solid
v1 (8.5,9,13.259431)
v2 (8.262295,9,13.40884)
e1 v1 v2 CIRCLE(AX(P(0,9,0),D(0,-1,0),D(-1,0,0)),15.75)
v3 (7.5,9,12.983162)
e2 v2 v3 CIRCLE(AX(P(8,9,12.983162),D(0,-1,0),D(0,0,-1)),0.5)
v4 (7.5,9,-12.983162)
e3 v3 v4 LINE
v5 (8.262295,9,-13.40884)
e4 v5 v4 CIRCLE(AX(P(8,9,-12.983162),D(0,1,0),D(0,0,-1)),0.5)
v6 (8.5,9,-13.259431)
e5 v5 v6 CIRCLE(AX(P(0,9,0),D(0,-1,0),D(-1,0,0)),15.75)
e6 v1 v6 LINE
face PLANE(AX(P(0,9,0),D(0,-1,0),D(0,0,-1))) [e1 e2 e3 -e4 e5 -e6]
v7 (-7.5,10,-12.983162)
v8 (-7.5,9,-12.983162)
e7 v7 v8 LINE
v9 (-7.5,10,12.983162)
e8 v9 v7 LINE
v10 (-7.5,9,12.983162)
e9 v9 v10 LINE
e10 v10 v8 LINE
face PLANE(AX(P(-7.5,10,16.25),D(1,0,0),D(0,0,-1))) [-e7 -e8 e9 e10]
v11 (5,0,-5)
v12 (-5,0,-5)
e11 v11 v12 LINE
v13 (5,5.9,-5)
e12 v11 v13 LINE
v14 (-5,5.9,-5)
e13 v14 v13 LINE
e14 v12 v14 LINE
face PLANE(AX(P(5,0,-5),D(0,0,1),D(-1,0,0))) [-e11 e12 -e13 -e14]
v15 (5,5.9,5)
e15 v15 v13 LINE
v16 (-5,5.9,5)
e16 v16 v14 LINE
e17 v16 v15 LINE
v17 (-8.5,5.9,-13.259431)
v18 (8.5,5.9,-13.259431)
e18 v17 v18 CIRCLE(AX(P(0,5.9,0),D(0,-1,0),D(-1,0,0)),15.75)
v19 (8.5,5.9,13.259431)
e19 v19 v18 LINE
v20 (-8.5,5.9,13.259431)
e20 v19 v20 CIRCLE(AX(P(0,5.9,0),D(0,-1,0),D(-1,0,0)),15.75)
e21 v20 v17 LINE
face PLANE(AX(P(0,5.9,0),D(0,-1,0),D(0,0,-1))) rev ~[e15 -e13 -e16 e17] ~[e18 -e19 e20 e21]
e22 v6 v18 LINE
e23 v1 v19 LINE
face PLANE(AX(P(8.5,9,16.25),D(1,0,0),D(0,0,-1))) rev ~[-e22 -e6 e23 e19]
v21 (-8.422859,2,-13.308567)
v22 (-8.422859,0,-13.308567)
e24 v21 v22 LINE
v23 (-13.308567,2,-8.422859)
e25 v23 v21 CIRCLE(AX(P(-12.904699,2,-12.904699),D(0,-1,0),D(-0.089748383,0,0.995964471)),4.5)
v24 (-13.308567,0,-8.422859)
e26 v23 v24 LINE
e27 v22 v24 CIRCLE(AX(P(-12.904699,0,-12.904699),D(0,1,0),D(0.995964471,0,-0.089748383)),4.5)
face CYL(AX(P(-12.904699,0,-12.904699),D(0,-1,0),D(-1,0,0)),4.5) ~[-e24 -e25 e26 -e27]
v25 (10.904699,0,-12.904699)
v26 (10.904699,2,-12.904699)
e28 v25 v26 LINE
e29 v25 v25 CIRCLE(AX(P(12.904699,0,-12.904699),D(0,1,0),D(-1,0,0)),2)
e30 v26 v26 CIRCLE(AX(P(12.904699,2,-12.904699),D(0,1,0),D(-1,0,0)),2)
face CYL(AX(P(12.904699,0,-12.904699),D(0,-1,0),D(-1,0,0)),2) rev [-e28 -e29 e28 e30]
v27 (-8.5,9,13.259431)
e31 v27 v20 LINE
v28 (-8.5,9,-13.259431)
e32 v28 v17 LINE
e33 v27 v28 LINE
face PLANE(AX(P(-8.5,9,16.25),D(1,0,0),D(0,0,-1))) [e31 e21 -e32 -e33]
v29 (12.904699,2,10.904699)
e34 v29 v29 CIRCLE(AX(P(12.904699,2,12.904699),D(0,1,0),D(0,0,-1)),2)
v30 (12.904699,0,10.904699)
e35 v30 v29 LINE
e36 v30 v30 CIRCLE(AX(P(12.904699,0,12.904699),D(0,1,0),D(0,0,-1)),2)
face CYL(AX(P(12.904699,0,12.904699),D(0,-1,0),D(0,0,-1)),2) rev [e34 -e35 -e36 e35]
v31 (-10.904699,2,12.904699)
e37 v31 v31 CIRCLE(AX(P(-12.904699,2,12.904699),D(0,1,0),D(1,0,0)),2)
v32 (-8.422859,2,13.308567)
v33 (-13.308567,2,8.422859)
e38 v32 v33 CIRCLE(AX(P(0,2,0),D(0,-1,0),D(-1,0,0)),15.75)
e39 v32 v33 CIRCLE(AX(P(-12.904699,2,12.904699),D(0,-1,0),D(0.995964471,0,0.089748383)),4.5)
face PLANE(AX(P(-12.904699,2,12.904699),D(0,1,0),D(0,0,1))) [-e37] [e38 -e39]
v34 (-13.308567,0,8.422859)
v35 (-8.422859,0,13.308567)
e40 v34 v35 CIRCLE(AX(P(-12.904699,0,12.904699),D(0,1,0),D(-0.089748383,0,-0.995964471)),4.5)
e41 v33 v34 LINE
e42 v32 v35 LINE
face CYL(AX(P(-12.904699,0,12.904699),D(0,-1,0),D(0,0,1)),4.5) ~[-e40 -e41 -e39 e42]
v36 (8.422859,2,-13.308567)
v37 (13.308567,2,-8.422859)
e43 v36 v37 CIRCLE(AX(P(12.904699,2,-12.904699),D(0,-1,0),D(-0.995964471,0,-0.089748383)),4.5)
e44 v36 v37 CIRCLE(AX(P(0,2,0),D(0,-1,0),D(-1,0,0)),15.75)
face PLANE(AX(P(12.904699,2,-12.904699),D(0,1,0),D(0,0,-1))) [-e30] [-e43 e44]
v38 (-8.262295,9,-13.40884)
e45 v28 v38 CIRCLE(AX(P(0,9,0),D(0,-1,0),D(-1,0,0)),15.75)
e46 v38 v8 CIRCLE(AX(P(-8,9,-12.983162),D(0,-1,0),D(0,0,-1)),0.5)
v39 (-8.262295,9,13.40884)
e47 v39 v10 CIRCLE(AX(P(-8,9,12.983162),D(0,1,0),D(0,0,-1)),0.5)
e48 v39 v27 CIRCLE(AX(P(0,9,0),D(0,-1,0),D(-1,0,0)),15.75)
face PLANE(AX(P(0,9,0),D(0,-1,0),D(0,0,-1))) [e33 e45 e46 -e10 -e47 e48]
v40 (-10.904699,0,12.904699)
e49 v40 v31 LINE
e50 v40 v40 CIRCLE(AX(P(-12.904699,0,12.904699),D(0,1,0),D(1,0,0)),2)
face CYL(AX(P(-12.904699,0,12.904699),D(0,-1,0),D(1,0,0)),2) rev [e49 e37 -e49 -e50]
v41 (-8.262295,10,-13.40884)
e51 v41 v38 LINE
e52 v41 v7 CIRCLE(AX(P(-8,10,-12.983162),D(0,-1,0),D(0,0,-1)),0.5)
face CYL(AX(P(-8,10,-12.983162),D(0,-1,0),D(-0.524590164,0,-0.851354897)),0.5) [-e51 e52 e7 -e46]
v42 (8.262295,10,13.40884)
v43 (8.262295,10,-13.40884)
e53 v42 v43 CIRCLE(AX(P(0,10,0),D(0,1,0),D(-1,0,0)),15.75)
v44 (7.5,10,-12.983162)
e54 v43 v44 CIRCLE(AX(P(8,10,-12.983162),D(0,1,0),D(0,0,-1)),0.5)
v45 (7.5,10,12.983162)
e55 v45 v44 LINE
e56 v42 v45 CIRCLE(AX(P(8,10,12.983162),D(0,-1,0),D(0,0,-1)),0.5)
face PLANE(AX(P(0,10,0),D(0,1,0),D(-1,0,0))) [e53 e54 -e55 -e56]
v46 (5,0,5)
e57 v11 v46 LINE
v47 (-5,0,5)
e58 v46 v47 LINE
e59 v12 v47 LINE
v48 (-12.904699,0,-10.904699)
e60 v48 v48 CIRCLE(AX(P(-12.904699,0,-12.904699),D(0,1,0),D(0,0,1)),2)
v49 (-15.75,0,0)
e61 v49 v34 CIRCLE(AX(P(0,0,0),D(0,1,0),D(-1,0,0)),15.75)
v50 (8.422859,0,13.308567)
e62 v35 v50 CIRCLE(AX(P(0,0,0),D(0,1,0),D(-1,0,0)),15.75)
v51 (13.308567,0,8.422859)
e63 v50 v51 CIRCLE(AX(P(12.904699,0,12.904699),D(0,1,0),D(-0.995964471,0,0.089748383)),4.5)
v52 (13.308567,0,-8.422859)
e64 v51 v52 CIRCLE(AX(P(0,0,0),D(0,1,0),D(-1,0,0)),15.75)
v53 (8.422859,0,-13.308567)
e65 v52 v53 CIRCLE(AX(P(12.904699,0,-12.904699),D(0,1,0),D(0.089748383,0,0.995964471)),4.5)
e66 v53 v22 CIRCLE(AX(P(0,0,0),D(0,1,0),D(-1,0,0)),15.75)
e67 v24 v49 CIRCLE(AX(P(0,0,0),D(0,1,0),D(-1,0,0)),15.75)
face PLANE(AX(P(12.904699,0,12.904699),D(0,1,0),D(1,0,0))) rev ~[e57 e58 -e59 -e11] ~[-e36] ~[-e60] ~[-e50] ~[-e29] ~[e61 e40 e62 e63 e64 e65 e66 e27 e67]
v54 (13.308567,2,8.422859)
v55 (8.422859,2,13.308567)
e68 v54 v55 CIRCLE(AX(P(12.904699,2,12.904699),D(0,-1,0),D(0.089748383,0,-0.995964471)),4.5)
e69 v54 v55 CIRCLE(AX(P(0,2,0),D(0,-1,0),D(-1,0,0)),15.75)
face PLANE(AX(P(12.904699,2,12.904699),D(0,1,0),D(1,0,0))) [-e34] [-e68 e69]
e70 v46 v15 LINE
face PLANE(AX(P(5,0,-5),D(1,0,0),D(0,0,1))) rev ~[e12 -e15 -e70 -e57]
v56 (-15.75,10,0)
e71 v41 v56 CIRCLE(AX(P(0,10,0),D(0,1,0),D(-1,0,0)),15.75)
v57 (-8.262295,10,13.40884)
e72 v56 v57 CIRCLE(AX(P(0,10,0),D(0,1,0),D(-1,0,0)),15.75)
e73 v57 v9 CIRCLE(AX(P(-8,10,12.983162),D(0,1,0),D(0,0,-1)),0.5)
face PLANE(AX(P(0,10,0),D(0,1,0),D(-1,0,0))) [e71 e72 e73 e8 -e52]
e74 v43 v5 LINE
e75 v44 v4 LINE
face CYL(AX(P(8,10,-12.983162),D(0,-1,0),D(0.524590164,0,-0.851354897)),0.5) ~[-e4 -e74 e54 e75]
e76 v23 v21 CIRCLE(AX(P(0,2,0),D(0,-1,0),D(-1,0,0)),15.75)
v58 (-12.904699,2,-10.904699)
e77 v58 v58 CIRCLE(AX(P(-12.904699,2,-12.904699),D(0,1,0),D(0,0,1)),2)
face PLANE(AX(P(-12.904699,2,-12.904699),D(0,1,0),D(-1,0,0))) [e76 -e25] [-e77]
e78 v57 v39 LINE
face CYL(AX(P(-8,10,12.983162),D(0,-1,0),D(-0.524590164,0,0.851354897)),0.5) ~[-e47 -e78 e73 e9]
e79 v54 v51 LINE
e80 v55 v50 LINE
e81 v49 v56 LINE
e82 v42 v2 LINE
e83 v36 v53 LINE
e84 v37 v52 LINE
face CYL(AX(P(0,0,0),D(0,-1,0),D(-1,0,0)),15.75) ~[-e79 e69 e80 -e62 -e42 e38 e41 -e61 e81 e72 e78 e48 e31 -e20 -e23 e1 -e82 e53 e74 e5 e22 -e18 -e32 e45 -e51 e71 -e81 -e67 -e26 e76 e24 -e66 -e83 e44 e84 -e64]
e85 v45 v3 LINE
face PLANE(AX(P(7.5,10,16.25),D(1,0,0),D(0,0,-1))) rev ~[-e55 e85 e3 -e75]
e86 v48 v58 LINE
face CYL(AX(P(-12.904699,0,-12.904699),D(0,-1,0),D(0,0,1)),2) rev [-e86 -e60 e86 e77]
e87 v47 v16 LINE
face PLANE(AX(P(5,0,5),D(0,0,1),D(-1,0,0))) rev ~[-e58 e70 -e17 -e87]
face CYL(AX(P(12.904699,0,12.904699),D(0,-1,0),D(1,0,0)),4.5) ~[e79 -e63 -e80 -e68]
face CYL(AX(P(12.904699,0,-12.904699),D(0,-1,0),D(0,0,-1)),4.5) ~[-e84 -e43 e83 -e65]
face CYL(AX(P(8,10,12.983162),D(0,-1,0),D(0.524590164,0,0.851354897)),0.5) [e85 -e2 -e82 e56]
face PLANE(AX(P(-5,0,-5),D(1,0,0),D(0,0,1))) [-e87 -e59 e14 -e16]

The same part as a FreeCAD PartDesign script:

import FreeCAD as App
import Part
import Sketcher
from FreeCAD import Vector
Q = App.Units.Quantity


def edges_at(feature, points):
    """Names of the edges that pass closest to the given points."""
    edges = feature.Shape.Edges
    near = lambda p: min(range(len(edges)), key=lambda i: edges[i].distToShape(Part.Vertex(*p))[0])
    return sorted({f"Edge{near(p) + 1}" for p in points})

doc = App.newDocument("Part")
body = doc.addObject("PartDesign::Body", "Body")

# Sketch on XZ plane
sketch1 = body.newObject("Sketcher::SketchObject", "Sketch")
sketch1.AttachmentSupport = (doc.getObject("XZ_Plane"), [""])
sketch1.MapMode = "FlatFace"
sketch1.addGeometry(Part.Circle(Vector(0, 0, 0), Vector(0, 0, 1), 16), False)
sketch1.addConstraint([
    Sketcher.Constraint("Coincident", 0, 3, -1, 1),
    Sketcher.Constraint("Diameter", 0, Q("31.5 mm")),
])
pad1 = body.newObject("PartDesign::Pad", "Pad")
pad1.Profile = sketch1
pad1.Length = 10
pad1.Reversed = True

# Sketch on XZ plane
sketch2 = body.newObject("Sketcher::SketchObject", "Sketch001")
sketch2.AttachmentSupport = (doc.getObject("XZ_Plane"), [""])
sketch2.MapMode = "FlatFace"
sketch2.addGeometry(Part.Circle(Vector(12.9, -12.9, 0), Vector(0, 0, 1), 4.5), False)
sketch2.addConstraint([
    Sketcher.Constraint("Diameter", 0, Q("9 mm")),
    Sketcher.Constraint("DistanceX", -1, 1, 0, 3, Q("12.904699 mm")),
    Sketcher.Constraint("DistanceY", 0, 3, -1, 1, Q("12.904699 mm")),
])
pad2 = body.newObject("PartDesign::Pad", "Pad001")
pad2.Profile = sketch2
pad2.Length = 2
pad2.Reversed = True
doc.recompute()

polarpattern = body.newObject("PartDesign::PolarPattern", "PolarPattern")
polarpattern.Originals = [pad2]
polarpattern.Axis = (doc.getObject("Y_Axis"), [""])
polarpattern.Angle = 360
polarpattern.Occurrences = 4
body.Tip = polarpattern

# Sketch on XZ plane
sketch3 = body.newObject("Sketcher::SketchObject", "Sketch002")
sketch3.AttachmentSupport = (doc.getObject("XZ_Plane"), [""])
sketch3.MapMode = "FlatFace"
sketch3.addGeometry(Part.Circle(Vector(12.9, 12.9, 0), Vector(0, 0, 1), 2), False)
sketch3.addConstraint([
    Sketcher.Constraint("Diameter", 0, Q("4 mm")),
    Sketcher.Constraint("DistanceX", -1, 1, 0, 3, Q("12.904699 mm")),
    Sketcher.Constraint("DistanceY", -1, 1, 0, 3, Q("12.904699 mm")),
])
pocket1 = body.newObject("PartDesign::Pocket", "Pocket")
pocket1.Profile = sketch3
pocket1.Length = 2
doc.recompute()

polarpattern2 = body.newObject("PartDesign::PolarPattern", "PolarPattern001")
polarpattern2.Originals = [pocket1]
polarpattern2.Axis = (doc.getObject("Y_Axis"), [""])
polarpattern2.Angle = 360
polarpattern2.Occurrences = 4
body.Tip = polarpattern2

# Sketch on XZ plane
sketch4 = body.newObject("Sketcher::SketchObject", "Sketch003")
sketch4.AttachmentSupport = (doc.getObject("XZ_Plane"), [""])
sketch4.MapMode = "FlatFace"
sketch4.addGeometry([
    Part.LineSegment(Vector(5, 5, 0), Vector(5, -5, 0)),
    Part.LineSegment(Vector(5, -5, 0), Vector(-5, -5, 0)),
    Part.LineSegment(Vector(-5, -5, 0), Vector(-5, 5, 0)),
    Part.LineSegment(Vector(-5, 5, 0), Vector(5, 5, 0)),
], False)
sketch4.addConstraint([
    Sketcher.Constraint("Coincident", 0, 2, 1, 1),
    Sketcher.Constraint("Coincident", 1, 2, 2, 1),
    Sketcher.Constraint("Coincident", 2, 2, 3, 1),
    Sketcher.Constraint("Coincident", 3, 2, 0, 1),
    Sketcher.Constraint("Vertical", 0),
    Sketcher.Constraint("Horizontal", 1),
    Sketcher.Constraint("Vertical", 2),
    Sketcher.Constraint("Horizontal", 3),
    Sketcher.Constraint("Symmetric", 0, 2, 2, 2, -1, 1),
    Sketcher.Constraint("Equal", 3, 0),
    Sketcher.Constraint("DistanceX", 1, 2, 1, 1, Q("10 mm")),
])
pocket2 = body.newObject("PartDesign::Pocket", "Pocket001")
pocket2.Profile = sketch4
pocket2.Length = 10

# Sketch on XZ plane
sketch5 = body.newObject("Sketcher::SketchObject", "Sketch004")
sketch5.AttachmentSupport = (doc.getObject("XZ_Plane"), [""])
sketch5.MapMode = "FlatFace"
sketch5.AttachmentOffset = App.Placement(Vector(0, 0, -9), App.Rotation())
sketch5.addGeometry([
    Part.LineSegment(Vector(8, 16, 0), Vector(-8, 16, 0)),
    Part.LineSegment(Vector(-8, 16, 0), Vector(-8, -16, 0)),
    Part.LineSegment(Vector(-8, -16, 0), Vector(8, -16, 0)),
    Part.LineSegment(Vector(8, -16, 0), Vector(8, 16, 0)),
], False)
sketch5.addConstraint([
    Sketcher.Constraint("Coincident", 0, 2, 1, 1),
    Sketcher.Constraint("Coincident", 1, 2, 2, 1),
    Sketcher.Constraint("Coincident", 2, 2, 3, 1),
    Sketcher.Constraint("Coincident", 3, 2, 0, 1),
    Sketcher.Constraint("Horizontal", 0),
    Sketcher.Constraint("Vertical", 1),
    Sketcher.Constraint("Horizontal", 2),
    Sketcher.Constraint("Vertical", 3),
    Sketcher.Constraint("Symmetric", 0, 2, 2, 2, -1, 1),
    Sketcher.Constraint("DistanceX", 0, 2, 0, 1, Q("17 mm")),
    Sketcher.Constraint("DistanceY", 1, 2, 1, 1, Q("32.5 mm")),
])
pocket3 = body.newObject("PartDesign::Pocket", "Pocket002")
pocket3.Profile = sketch5
pocket3.Length = 3.1
pocket3.Reversed = True

# Sketch on XZ plane
sketch6 = body.newObject("Sketcher::SketchObject", "Sketch005")
sketch6.AttachmentSupport = (doc.getObject("XZ_Plane"), [""])
sketch6.MapMode = "FlatFace"
sketch6.AttachmentOffset = App.Placement(Vector(0, 0, -10), App.Rotation())
sketch6.addGeometry([
    Part.LineSegment(Vector(8, 16, 0), Vector(-8, 16, 0)),
    Part.LineSegment(Vector(-8, 16, 0), Vector(-8, -16, 0)),
    Part.LineSegment(Vector(-8, -16, 0), Vector(8, -16, 0)),
    Part.LineSegment(Vector(8, -16, 0), Vector(8, 16, 0)),
], False)
sketch6.addConstraint([
    Sketcher.Constraint("Coincident", 0, 2, 1, 1),
    Sketcher.Constraint("Coincident", 1, 2, 2, 1),
    Sketcher.Constraint("Coincident", 2, 2, 3, 1),
    Sketcher.Constraint("Coincident", 3, 2, 0, 1),
    Sketcher.Constraint("Horizontal", 0),
    Sketcher.Constraint("Vertical", 1),
    Sketcher.Constraint("Horizontal", 2),
    Sketcher.Constraint("Vertical", 3),
    Sketcher.Constraint("Symmetric", 0, 2, 2, 2, -1, 1),
    Sketcher.Constraint("DistanceX", 0, 2, 0, 1, Q("15 mm")),
    Sketcher.Constraint("DistanceY", 1, 2, 1, 1, Q("32.5 mm")),
])
pocket4 = body.newObject("PartDesign::Pocket", "Pocket003")
pocket4.Profile = sketch6
pocket4.Length = 1
pocket4.Reversed = True
doc.recompute()

fillet = body.newObject("PartDesign::Fillet", "Fillet")
fillet.Base = (pocket4, edges_at(pocket4, [
    (-7.5, 9.5, -13.85),
    (7.5, 9.5, 13.85),
    (-7.5, 9.5, 13.85),
    (7.5, 9.5, -13.85),
]))
fillet.Radius = 0.5

doc.recompute()
